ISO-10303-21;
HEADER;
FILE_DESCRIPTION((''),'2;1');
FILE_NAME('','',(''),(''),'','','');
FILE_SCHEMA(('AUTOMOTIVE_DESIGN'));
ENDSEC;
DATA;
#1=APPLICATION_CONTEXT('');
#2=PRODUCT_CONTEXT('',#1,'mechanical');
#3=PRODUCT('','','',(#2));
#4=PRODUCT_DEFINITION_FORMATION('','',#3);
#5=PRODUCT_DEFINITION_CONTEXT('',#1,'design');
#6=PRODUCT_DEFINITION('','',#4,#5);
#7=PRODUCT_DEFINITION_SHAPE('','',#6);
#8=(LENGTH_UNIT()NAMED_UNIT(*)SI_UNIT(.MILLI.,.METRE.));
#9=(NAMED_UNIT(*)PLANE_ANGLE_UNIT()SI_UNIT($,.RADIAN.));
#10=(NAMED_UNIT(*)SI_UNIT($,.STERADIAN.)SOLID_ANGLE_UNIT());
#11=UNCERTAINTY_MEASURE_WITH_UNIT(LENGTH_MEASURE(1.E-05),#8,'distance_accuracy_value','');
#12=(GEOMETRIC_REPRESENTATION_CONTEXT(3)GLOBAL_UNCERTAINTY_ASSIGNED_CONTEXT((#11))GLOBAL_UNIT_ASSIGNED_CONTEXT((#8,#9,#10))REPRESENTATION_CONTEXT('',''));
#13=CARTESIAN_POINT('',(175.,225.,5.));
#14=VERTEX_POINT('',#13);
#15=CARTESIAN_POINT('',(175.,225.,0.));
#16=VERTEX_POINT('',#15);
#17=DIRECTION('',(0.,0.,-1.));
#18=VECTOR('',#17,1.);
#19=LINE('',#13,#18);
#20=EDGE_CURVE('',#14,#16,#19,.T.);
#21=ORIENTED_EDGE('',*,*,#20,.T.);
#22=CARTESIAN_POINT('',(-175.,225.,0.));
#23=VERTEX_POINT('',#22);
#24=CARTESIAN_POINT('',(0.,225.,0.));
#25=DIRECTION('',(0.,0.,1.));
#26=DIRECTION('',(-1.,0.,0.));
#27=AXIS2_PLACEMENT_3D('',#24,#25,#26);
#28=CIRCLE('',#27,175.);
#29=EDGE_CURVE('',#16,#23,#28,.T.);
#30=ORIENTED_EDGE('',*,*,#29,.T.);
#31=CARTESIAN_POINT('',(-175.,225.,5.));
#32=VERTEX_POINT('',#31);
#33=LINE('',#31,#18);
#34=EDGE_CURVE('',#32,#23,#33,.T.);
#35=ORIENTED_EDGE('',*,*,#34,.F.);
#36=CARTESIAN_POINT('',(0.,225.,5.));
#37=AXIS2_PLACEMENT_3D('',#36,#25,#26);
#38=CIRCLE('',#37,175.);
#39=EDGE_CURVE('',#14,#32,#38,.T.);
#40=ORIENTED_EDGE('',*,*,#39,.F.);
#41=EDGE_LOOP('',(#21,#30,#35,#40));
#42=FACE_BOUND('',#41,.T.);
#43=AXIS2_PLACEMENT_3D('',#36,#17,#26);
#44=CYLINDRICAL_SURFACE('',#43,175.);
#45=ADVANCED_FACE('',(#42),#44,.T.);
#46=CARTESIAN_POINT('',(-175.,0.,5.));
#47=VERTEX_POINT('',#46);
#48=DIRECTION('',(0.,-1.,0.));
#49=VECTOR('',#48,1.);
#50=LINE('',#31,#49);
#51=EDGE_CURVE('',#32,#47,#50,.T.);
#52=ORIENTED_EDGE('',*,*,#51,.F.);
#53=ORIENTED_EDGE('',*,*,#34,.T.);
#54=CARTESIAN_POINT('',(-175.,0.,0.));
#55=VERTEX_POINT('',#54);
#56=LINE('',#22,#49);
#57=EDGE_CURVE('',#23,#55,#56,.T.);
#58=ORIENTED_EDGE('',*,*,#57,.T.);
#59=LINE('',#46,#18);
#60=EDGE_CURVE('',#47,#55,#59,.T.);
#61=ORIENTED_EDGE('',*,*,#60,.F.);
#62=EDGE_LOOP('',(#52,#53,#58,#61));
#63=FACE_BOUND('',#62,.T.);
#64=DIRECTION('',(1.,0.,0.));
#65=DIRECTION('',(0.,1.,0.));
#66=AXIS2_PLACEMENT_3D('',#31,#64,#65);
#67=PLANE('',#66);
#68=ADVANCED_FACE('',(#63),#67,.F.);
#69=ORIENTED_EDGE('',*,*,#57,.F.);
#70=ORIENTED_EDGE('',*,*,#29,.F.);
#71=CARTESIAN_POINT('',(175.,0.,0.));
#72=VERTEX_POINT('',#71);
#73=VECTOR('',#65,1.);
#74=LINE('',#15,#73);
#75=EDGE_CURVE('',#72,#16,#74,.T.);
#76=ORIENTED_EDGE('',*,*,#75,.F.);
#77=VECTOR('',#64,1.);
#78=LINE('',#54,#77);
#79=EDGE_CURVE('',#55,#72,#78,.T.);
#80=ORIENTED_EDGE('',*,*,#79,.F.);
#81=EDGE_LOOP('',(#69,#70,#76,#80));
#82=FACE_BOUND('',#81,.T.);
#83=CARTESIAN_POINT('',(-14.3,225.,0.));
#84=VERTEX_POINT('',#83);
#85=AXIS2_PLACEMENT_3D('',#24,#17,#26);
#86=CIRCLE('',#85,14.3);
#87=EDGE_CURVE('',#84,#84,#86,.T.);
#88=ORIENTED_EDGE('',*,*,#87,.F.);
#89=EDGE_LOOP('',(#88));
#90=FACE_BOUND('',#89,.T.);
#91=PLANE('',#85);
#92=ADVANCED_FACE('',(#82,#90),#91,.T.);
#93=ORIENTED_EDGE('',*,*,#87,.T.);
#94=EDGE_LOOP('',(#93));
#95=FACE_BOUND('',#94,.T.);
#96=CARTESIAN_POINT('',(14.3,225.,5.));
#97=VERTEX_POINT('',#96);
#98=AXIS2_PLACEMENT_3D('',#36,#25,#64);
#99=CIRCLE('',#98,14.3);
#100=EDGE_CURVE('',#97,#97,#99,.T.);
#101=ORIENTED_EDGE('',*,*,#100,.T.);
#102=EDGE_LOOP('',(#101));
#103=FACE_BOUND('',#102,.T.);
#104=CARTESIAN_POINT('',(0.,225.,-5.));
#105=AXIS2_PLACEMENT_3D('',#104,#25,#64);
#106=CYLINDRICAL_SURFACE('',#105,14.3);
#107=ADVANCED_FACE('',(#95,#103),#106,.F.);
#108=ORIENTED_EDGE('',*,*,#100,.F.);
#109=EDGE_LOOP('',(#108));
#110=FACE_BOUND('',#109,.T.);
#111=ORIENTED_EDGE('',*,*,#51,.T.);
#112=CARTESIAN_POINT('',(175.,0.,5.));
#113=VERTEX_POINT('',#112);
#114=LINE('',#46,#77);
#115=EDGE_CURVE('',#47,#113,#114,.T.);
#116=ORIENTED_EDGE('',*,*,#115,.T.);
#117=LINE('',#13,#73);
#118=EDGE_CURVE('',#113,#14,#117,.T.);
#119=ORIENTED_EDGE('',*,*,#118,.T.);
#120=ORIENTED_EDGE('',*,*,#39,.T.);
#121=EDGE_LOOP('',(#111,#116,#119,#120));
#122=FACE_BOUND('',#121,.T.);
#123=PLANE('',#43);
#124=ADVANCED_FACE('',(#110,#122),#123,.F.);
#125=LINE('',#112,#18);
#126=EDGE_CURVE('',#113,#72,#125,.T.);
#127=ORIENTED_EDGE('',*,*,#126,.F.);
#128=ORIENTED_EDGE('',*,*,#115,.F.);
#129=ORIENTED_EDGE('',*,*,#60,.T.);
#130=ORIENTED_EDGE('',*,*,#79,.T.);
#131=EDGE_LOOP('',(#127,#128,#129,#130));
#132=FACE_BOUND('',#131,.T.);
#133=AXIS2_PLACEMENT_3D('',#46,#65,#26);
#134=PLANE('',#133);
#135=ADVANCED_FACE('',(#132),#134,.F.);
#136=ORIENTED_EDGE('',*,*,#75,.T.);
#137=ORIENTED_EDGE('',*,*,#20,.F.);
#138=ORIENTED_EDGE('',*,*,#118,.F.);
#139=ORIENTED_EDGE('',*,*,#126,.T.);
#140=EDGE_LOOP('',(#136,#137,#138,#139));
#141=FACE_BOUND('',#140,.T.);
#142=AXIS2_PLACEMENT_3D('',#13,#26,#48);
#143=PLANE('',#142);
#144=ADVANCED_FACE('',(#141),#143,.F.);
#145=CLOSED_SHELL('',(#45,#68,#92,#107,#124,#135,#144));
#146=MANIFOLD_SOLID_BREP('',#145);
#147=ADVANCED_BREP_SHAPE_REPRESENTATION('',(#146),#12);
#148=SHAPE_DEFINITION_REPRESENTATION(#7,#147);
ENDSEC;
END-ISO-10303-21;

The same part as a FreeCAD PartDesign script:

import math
import FreeCAD as App
import Part
import Sketcher

V = App.Vector

doc = App.newDocument("Part")
params = doc.addObject("Spreadsheet::Sheet", "Params")
for row, (alias, value) in enumerate([
    ("sketch1_radius", "175 mm"),
    ("sketch1_height", "225 mm"),
    ("pad1_length", "5 mm"),
    ("sketch2_diameter", "28.6 mm"),
    ("pocket1_length", "10 mm"),
], start=1):
    params.set(f"A{row}", alias)
    params.set(f"B{row}", "=" + value)
    params.setAlias(f"B{row}", alias)

body = doc.addObject("PartDesign::Body", "Body")

sketch1 = body.newObject("Sketcher::SketchObject", "Sketch")
sketch1.AttachmentSupport = (doc.getObject("XY_Plane"), [""])
sketch1.MapMode = "FlatFace"
sketch1.addGeometry([
    Part.LineSegment(V(-175, 225, 0), V(-175, 0, 0)),
    Part.LineSegment(V(-175, 0, 0), V(175, 0, 0)),
    Part.LineSegment(V(175, 0, 0), V(175, 225, 0)),
    Part.ArcOfCircle(Part.Circle(V(0, 225, 0), V(0, 0, 1), 175), math.radians(0), math.radians(180)),
], False)
sketch1.addConstraint([
    Sketcher.Constraint("Coincident", 0, 2, 1, 1),
    Sketcher.Constraint("Coincident", 1, 2, 2, 1),
    Sketcher.Constraint("Tangent", 2, 2, 3, 1),
    Sketcher.Constraint("Tangent", 3, 2, 0, 1),
    Sketcher.Constraint("Vertical", 0),
    Sketcher.Constraint("Horizontal", 1),
    Sketcher.Constraint("Vertical", 2),
    Sketcher.Constraint("Symmetric", 0, 2, 1, 2, -1, 1),
    Sketcher.Constraint("Radius", 3, 175.0),
    Sketcher.Constraint("DistanceY", 0, 2, 0, 1, 225.0),
])
sketch1.setExpression("Constraints[8]", "Params.sketch1_radius")
sketch1.setExpression("Constraints[9]", "Params.sketch1_height")
pad1 = body.newObject("PartDesign::Pad", "Pad")
pad1.Profile = sketch1
pad1.setExpression("Length", "Params.pad1_length")

sketch2 = body.newObject("Sketcher::SketchObject", "Sketch001")
sketch2.AttachmentSupport = (doc.getObject("XY_Plane"), [""])
sketch2.MapMode = "FlatFace"
sketch2.AttachmentOffset = App.Placement(V(0, 0, 5), App.Rotation())
sketch2.addGeometry(Part.Circle(V(0, 225, 0), V(0, 0, 1), 14), False)
sketch2.addConstraint([
    Sketcher.Constraint("PointOnObject", 0, 3, -2),
    Sketcher.Constraint("Diameter", 0, 28.6),
    Sketcher.Constraint("DistanceY", -1, 1, 0, 3, 225.0),
])
sketch2.setExpression("Constraints[1]", "Params.sketch2_diameter")
pocket1 = body.newObject("PartDesign::Pocket", "Pocket")
pocket1.Profile = sketch2
pocket1.setExpression("Length", "Params.pocket1_length")

doc.recompute()
